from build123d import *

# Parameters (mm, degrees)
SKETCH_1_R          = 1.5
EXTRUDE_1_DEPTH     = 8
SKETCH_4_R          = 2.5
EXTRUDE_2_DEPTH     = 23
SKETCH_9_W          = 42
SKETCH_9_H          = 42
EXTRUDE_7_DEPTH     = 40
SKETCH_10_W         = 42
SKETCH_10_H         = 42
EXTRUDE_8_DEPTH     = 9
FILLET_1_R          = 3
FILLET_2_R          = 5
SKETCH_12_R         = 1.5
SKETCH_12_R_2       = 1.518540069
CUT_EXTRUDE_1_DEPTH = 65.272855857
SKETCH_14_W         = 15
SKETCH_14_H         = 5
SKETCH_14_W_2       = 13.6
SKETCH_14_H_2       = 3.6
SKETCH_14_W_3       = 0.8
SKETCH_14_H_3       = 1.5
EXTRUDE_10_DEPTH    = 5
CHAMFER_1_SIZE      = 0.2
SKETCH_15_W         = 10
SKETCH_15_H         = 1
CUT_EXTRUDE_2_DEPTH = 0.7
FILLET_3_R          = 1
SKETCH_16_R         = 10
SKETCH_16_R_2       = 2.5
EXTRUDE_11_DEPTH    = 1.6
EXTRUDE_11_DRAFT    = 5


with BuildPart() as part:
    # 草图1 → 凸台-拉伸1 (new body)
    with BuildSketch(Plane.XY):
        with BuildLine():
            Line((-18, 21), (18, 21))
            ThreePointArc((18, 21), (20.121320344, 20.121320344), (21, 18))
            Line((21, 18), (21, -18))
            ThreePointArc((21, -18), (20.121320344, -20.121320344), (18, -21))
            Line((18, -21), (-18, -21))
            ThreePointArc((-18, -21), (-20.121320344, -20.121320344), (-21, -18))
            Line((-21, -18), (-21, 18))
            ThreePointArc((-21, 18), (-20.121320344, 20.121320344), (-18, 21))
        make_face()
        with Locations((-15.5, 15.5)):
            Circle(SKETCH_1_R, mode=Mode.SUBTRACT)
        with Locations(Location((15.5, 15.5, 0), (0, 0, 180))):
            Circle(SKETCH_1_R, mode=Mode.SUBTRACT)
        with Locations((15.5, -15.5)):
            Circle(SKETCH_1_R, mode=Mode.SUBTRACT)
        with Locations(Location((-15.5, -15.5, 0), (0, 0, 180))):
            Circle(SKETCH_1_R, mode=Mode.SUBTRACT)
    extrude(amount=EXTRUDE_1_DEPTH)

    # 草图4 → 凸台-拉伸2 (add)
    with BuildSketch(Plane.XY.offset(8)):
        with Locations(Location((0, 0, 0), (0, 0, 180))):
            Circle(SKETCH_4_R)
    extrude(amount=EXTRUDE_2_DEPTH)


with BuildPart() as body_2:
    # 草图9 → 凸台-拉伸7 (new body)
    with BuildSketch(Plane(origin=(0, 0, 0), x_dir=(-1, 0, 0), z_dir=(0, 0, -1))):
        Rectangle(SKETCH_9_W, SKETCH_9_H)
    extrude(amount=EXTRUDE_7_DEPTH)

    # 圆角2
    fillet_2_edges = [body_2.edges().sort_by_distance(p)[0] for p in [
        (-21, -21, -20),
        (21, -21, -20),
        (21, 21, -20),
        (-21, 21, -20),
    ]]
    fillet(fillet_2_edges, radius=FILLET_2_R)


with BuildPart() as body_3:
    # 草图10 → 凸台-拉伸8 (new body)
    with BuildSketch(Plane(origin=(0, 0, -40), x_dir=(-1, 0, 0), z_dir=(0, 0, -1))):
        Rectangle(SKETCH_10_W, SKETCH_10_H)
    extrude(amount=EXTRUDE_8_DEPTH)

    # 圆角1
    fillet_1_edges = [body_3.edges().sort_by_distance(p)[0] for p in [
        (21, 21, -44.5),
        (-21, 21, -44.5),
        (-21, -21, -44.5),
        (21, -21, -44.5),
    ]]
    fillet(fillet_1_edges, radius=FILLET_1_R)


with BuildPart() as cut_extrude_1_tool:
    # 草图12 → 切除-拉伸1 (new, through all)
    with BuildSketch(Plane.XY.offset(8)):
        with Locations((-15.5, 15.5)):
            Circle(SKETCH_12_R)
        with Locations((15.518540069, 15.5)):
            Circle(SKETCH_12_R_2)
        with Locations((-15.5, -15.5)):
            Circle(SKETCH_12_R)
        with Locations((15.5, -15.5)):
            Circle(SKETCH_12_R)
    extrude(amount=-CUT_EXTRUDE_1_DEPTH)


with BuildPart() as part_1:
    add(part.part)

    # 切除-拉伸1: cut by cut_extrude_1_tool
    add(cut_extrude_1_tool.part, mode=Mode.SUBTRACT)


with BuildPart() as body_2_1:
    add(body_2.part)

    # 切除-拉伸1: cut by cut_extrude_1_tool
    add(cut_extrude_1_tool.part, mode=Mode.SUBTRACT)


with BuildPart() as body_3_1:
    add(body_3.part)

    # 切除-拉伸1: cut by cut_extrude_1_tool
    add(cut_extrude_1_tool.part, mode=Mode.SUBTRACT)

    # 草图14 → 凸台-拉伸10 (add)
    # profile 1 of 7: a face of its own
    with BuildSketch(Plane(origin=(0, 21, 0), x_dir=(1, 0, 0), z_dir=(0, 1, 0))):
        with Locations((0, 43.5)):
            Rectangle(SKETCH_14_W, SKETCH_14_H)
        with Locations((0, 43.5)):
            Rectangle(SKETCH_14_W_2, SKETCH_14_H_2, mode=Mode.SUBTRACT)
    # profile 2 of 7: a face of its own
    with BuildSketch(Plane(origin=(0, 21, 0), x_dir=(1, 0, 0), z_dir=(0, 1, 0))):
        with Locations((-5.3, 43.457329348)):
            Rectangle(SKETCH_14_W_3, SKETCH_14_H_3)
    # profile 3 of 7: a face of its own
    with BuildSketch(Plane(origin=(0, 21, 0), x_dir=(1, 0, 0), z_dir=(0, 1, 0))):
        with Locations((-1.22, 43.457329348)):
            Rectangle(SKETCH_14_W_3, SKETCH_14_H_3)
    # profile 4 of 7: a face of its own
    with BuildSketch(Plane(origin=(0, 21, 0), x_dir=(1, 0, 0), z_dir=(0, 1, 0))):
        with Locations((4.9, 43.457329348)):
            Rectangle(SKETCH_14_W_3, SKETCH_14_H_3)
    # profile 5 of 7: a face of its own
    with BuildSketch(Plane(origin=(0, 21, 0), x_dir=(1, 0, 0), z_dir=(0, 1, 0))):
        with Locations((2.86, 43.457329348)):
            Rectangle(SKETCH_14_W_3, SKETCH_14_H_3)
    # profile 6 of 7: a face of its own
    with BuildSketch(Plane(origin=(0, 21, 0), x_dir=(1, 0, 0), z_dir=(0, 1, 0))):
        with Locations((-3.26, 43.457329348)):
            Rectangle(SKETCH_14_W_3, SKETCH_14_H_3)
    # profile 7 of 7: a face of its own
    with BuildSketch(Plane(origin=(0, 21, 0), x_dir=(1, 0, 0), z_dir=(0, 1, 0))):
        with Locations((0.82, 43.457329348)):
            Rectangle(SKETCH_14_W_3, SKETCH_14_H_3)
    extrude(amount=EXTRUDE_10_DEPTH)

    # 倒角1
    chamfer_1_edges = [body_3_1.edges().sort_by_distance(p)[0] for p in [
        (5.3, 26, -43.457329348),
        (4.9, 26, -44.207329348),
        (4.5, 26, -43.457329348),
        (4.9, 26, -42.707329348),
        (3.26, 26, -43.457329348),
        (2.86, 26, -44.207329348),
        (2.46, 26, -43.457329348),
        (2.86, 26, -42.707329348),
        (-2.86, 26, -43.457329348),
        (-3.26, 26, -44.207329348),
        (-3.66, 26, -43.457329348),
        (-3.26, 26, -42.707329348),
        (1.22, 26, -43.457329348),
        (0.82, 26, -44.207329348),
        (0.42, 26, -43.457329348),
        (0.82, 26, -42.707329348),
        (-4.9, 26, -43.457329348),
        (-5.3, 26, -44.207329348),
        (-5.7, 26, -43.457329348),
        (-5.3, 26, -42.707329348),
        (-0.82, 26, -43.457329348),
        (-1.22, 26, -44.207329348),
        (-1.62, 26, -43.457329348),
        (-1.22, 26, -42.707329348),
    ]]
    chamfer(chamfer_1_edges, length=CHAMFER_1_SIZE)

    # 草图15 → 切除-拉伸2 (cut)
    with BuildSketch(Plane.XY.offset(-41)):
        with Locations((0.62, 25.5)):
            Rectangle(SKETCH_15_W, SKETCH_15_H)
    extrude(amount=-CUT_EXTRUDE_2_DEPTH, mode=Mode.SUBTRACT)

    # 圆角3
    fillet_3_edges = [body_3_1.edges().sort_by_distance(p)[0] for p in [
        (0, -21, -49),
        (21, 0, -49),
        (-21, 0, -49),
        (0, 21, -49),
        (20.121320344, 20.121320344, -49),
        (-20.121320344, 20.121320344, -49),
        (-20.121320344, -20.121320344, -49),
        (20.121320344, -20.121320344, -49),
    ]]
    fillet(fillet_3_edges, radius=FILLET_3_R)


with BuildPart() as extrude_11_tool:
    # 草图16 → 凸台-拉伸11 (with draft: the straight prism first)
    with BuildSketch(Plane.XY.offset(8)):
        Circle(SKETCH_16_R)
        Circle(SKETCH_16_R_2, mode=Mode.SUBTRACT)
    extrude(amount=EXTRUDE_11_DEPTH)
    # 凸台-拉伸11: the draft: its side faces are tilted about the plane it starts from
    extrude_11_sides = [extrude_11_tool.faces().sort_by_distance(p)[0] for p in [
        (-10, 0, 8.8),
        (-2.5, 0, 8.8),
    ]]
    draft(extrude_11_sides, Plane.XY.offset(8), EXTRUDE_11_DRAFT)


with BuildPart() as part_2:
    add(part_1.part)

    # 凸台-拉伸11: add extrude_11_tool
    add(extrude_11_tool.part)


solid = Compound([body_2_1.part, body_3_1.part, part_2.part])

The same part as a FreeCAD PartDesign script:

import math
import FreeCAD as App
import Part
import Sketcher

V = App.Vector
Q = App.Units.Quantity


def edges_at(feature, points):
    """Names of the edges that pass closest to the given points."""
    edges = feature.Shape.Edges
    near = lambda p: min(range(len(edges)), key=lambda i: edges[i].distToShape(Part.Vertex(*p))[0])
    return sorted({f"Edge{near(p) + 1}" for p in points})


def faces_at(feature, points):
    """Names of the faces that lie closest to the given points."""
    faces = feature.Shape.Faces
    near = lambda p: min(range(len(faces)), key=lambda i: faces[i].distToShape(Part.Vertex(*p))[0])
    return sorted({f"Face{near(p) + 1}" for p in points})


def add_polygon(sketch, points):
    """Adds a closed chain of lines whose ends are joined by coincident constraints."""
    first, n = sketch.GeometryCount, len(points)
    for a, b in zip(points, points[1:] + points[:1]):
        sketch.addGeometry(Part.LineSegment(App.Vector(*a, 0), App.Vector(*b, 0)), False)
    for i in range(n):
        sketch.addConstraint(Sketcher.Constraint("Coincident", first + i, 2, first + (i + 1) % n, 1))

doc = App.newDocument("Part")
body = doc.addObject("PartDesign::Body", "Body")

# Sketch on XY plane
sketch1 = body.newObject("Sketcher::SketchObject", "Sketch")
sketch1.AttachmentSupport = (doc.getObject("XY_Plane"), [""])
sketch1.MapMode = "FlatFace"
sketch1.addGeometry(Part.LineSegment(V(18, 21, 0), V(-18, 21, 0)), False)
sketch1.addGeometry(Part.ArcOfCircle(Part.Circle(V(-18, 18, 0), V(0, 0, 1), 3), math.radians(90), math.radians(180)), False)
sketch1.addGeometry(Part.LineSegment(V(-21, 18, 0), V(-21, -18, 0)), False)
sketch1.addGeometry(Part.ArcOfCircle(Part.Circle(V(-18, -18, 0), V(0, 0, 1), 3), math.radians(180), math.radians(270)), False)
sketch1.addGeometry(Part.LineSegment(V(-18, -21, 0), V(18, -21, 0)), False)
sketch1.addGeometry(Part.ArcOfCircle(Part.Circle(V(18, -18, 0), V(0, 0, 1), 3), math.radians(-90), math.radians(0)), False)
sketch1.addGeometry(Part.LineSegment(V(21, -18, 0), V(21, 18, 0)), False)
sketch1.addGeometry(Part.ArcOfCircle(Part.Circle(V(18, 18, 0), V(0, 0, 1), 3), math.radians(0), math.radians(90)), False)
sketch1.addGeometry(Part.Circle(V(15.5, -15.5, 0), V(0, 0, 1), 1.5), False)
sketch1.addGeometry(Part.Circle(V(-15.5, -15.5, 0), V(0, 0, 1), 1.5), False)
sketch1.addGeometry(Part.Circle(V(15.5, 15.5, 0), V(0, 0, 1), 1.5), False)
sketch1.addGeometry(Part.Circle(V(-15.5, 15.5, 0), V(0, 0, 1), 1.5), False)
sketch1.addConstraint(Sketcher.Constraint("Tangent", 0, 2, 1, 1))
sketch1.addConstraint(Sketcher.Constraint("Tangent", 1, 2, 2, 1))
sketch1.addConstraint(Sketcher.Constraint("Tangent", 2, 2, 3, 1))
sketch1.addConstraint(Sketcher.Constraint("Tangent", 3, 2, 4, 1))
sketch1.addConstraint(Sketcher.Constraint("Tangent", 4, 2, 5, 1))
sketch1.addConstraint(Sketcher.Constraint("Tangent", 5, 2, 6, 1))
sketch1.addConstraint(Sketcher.Constraint("Tangent", 6, 2, 7, 1))
sketch1.addConstraint(Sketcher.Constraint("Tangent", 7, 2, 0, 1))
sketch1.addConstraint(Sketcher.Constraint("Horizontal", 0))
sketch1.addConstraint(Sketcher.Constraint("Vertical", 2))
sketch1.addConstraint(Sketcher.Constraint("Horizontal", 4))
sketch1.addConstraint(Sketcher.Constraint("Vertical", 6))
sketch1.addConstraint(Sketcher.Constraint("Equal", 1, 3))
sketch1.addConstraint(Sketcher.Constraint("Equal", 3, 5))
sketch1.addConstraint(Sketcher.Constraint("Equal", 5, 7))
sketch1.addConstraint(Sketcher.Constraint("Equal", 8, 9))
sketch1.addConstraint(Sketcher.Constraint("Equal", 9, 10))
sketch1.addConstraint(Sketcher.Constraint("Equal", 10, 11))
sketch1.addConstraint(Sketcher.Constraint("Symmetric", 1, 3, 5, 3, -1, 1))
sketch1.addConstraint(Sketcher.Constraint("Symmetric", 9, 3, 10, 3, -1, 1))
sketch1.addConstraint(Sketcher.Constraint("Symmetric", 8, 3, 11, 3, -1, 1))
sketch1.addConstraint(Sketcher.Constraint("Symmetric", 8, 3, 9, 3, -2))
sketch1.addConstraint(Sketcher.Constraint("Equal", 4, 2))
sketch1.addConstraint(Sketcher.Constraint("Diameter", 8, Q("3 mm")))
sketch1.addConstraint(Sketcher.Constraint("Radius", 1, Q("3 mm")))
sketch1.addConstraint(Sketcher.Constraint("DistanceX", 0, 2, 0, 1, Q("36 mm")))
sketch1.addConstraint(Sketcher.Constraint("DistanceX", 9, 3, 8, 3, Q("31 mm")))
sketch1.addConstraint(Sketcher.Constraint("DistanceY", 8, 3, 10, 3, Q("31 mm")))
pad1 = body.newObject("PartDesign::Pad", "Pad")
pad1.Profile = sketch1
pad1.Length = 8

# Sketch on XY plane
sketch2 = body.newObject("Sketcher::SketchObject", "Sketch001")
sketch2.AttachmentSupport = (doc.getObject("XY_Plane"), [""])
sketch2.MapMode = "FlatFace"
sketch2.AttachmentOffset = App.Placement(V(0, 0, 8), App.Rotation())
sketch2.addGeometry(Part.Circle(V(0, 0, 0), V(0, 0, 1), 2.5), False)
sketch2.addConstraint(Sketcher.Constraint("Coincident", 0, 3, -1, 1))
sketch2.addConstraint(Sketcher.Constraint("Diameter", 0, Q("5 mm")))
pad2 = body.newObject("PartDesign::Pad", "Pad001")
pad2.Profile = sketch2
pad2.Length = 23
body2 = doc.addObject("PartDesign::Body", "Body001")

# Sketch on XY plane
sketch3 = body2.newObject("Sketcher::SketchObject", "Sketch002")
sketch3.AttachmentSupport = (doc.getObject("XY_Plane001"), [""])
sketch3.MapMode = "FlatFace"
add_polygon(sketch3, [(21, 21), (21, -21), (-21, -21), (-21, 21)])  # lines 0-3
sketch3.addConstraint(Sketcher.Constraint("Vertical", 0))
sketch3.addConstraint(Sketcher.Constraint("Horizontal", 1))
sketch3.addConstraint(Sketcher.Constraint("Vertical", 2))
sketch3.addConstraint(Sketcher.Constraint("Horizontal", 3))
sketch3.addConstraint(Sketcher.Constraint("Symmetric", 0, 2, 2, 2, -1, 1))
sketch3.addConstraint(Sketcher.Constraint("Equal", 3, 0))
sketch3.addConstraint(Sketcher.Constraint("DistanceX", 1, 2, 1, 1, Q("42 mm")))
pad3 = body2.newObject("PartDesign::Pad", "Pad002")
pad3.Profile = sketch3
pad3.Length = 40
pad3.Reversed = True
doc.recompute()

fillet = body2.newObject("PartDesign::Fillet", "Fillet")
fillet.Base = (pad3, edges_at(pad3, [
    (-21, -21, -20),
    (21, -21, -20),
    (21, 21, -20),
    (-21, 21, -20),
]))
fillet.Radius = 5
body3 = doc.addObject("PartDesign::Body", "Body002")

# Sketch on XY plane
sketch4 = body3.newObject("Sketcher::SketchObject", "Sketch003")
sketch4.AttachmentSupport = (doc.getObject("XY_Plane002"), [""])
sketch4.MapMode = "FlatFace"
sketch4.AttachmentOffset = App.Placement(V(0, 0, -40), App.Rotation())
add_polygon(sketch4, [(21, 21), (21, -21), (-21, -21), (-21, 21)])  # lines 0-3
sketch4.addConstraint(Sketcher.Constraint("Vertical", 0))
sketch4.addConstraint(Sketcher.Constraint("Horizontal", 1))
sketch4.addConstraint(Sketcher.Constraint("Vertical", 2))
sketch4.addConstraint(Sketcher.Constraint("Horizontal", 3))
sketch4.addConstraint(Sketcher.Constraint("Symmetric", 0, 2, 2, 2, -1, 1))
sketch4.addConstraint(Sketcher.Constraint("Equal", 3, 0))
sketch4.addConstraint(Sketcher.Constraint("DistanceX", 1, 2, 1, 1, Q("42 mm")))
pad4 = body3.newObject("PartDesign::Pad", "Pad003")
pad4.Profile = sketch4
pad4.Length = 9
pad4.Reversed = True
doc.recompute()

fillet2 = body3.newObject("PartDesign::Fillet", "Fillet001")
fillet2.Base = (pad4, edges_at(pad4, [
    (21, 21, -44.5),
    (-21, 21, -44.5),
    (-21, -21, -44.5),
    (21, -21, -44.5),
]))
fillet2.Radius = 3
body4 = doc.addObject("PartDesign::Body", "Body003")
body4.AllowCompound = True

# Sketch on XY plane
sketch5 = body4.newObject("Sketcher::SketchObject", "Sketch004")
sketch5.AttachmentSupport = (doc.getObject("XY_Plane003"), [""])
sketch5.MapMode = "FlatFace"
sketch5.AttachmentOffset = App.Placement(V(0, 0, 8), App.Rotation())
sketch5.addGeometry(Part.Circle(V(-15.5, 15.5, 0), V(0, 0, 1), 1.5), False)
sketch5.addGeometry(Part.Circle(V(15.5, 15.5, 0), V(0, 0, 1), 1.5), False)
sketch5.addGeometry(Part.Circle(V(-15.5, -15.5, 0), V(0, 0, 1), 1.5), False)
sketch5.addGeometry(Part.Circle(V(15.5, -15.5, 0), V(0, 0, 1), 1.5), False)
sketch5.addConstraint(Sketcher.Constraint("Equal", 0, 2))
sketch5.addConstraint(Sketcher.Constraint("Equal", 2, 3))
sketch5.addConstraint(Sketcher.Constraint("Symmetric", 0, 3, 3, 3, -1, 1))
sketch5.addConstraint(Sketcher.Constraint("Symmetric", 2, 3, 3, 3, -2))
sketch5.addConstraint(Sketcher.Constraint("Horizontal", 0, 3, 1, 3))
sketch5.addConstraint(Sketcher.Constraint("Diameter", 0, Q("3 mm")))
sketch5.addConstraint(Sketcher.Constraint("DistanceY", 2, 3, 0, 3, Q("31 mm")))
sketch5.addConstraint(Sketcher.Constraint("DistanceX", 2, 3, 3, 3, Q("31 mm")))
sketch5.addConstraint(Sketcher.Constraint("Diameter", 1, Q("3.03708 mm")))
sketch5.addConstraint(Sketcher.Constraint("DistanceX", -1, 1, 1, 3, Q("15.51854 mm")))
pad5 = body4.newObject("PartDesign::Pad", "Pad004")
pad5.Profile = sketch5
pad5.Length = 65.272856
pad5.Reversed = True
doc.recompute()

body5 = doc.addObject("PartDesign::Body", "Body004")
body5.BaseFeature = body4
boolean = body.newObject("PartDesign::Boolean", "Boolean")
boolean.Type = "Cut"
boolean.addObjects([body5])
doc.recompute()

body6 = doc.addObject("PartDesign::Body", "Body005")
body6.BaseFeature = body4
boolean2 = body2.newObject("PartDesign::Boolean", "Boolean001")
boolean2.Type = "Cut"
boolean2.addObjects([body6])
doc.recompute()

boolean3 = body3.newObject("PartDesign::Boolean", "Boolean002")
boolean3.Type = "Cut"
boolean3.addObjects([body4])

# Sketch on XZ plane
sketch6 = body3.newObject("Sketcher::SketchObject", "Sketch005")
sketch6.AttachmentSupport = (doc.getObject("XZ_Plane002"), [""])
sketch6.MapMode = "FlatFace"
sketch6.AttachmentOffset = App.Placement(V(0, 0, -21), App.Rotation())
add_polygon(sketch6, [(-7.5, -46), (-7.5, -41), (7.5, -41), (7.5, -46)])  # lines 0-3
add_polygon(sketch6, [(6.8, -41.7), (-6.8, -41.7), (-6.8, -45.3), (6.8, -45.3)])  # lines 4-7
add_polygon(sketch6, [(-5.7, -44.2), (-5.7, -42.7), (-4.9, -42.7), (-4.9, -44.2)])  # lines 8-11
add_polygon(sketch6, [(-1.6, -44.2), (-1.6, -42.7), (-0.8, -42.7), (-0.8, -44.2)])  # lines 12-15
add_polygon(sketch6, [(4.5, -44.2), (4.5, -42.7), (5.3, -42.7), (5.3, -44.2)])  # lines 16-19
add_polygon(sketch6, [(2.5, -44.2), (2.5, -42.7), (3.3, -42.7), (3.3, -44.2)])  # lines 20-23
add_polygon(sketch6, [(-3.7, -44.2), (-3.7, -42.7), (-2.9, -42.7), (-2.9, -44.2)])  # lines 24-27
add_polygon(sketch6, [(0.4, -44.2), (0.4, -42.7), (1.2, -42.7), (1.2, -44.2)])  # lines 28-31
sketch6.addConstraint(Sketcher.Constraint("Vertical", 0))
sketch6.addConstraint(Sketcher.Constraint("Horizontal", 1))
sketch6.addConstraint(Sketcher.Constraint("Vertical", 2))
sketch6.addConstraint(Sketcher.Constraint("Horizontal", 3))
sketch6.addConstraint(Sketcher.Constraint("Horizontal", 4))
sketch6.addConstraint(Sketcher.Constraint("Vertical", 5))
sketch6.addConstraint(Sketcher.Constraint("Horizontal", 6))
sketch6.addConstraint(Sketcher.Constraint("Vertical", 7))
sketch6.addConstraint(Sketcher.Constraint("Vertical", 8))
sketch6.addConstraint(Sketcher.Constraint("Horizontal", 9))
sketch6.addConstraint(Sketcher.Constraint("Vertical", 10))
sketch6.addConstraint(Sketcher.Constraint("Horizontal", 11))
sketch6.addConstraint(Sketcher.Constraint("Vertical", 12))
sketch6.addConstraint(Sketcher.Constraint("Horizontal", 13))
sketch6.addConstraint(Sketcher.Constraint("Vertical", 14))
sketch6.addConstraint(Sketcher.Constraint("Horizontal", 15))
sketch6.addConstraint(Sketcher.Constraint("Vertical", 16))
sketch6.addConstraint(Sketcher.Constraint("Horizontal", 17))
sketch6.addConstraint(Sketcher.Constraint("Vertical", 18))
sketch6.addConstraint(Sketcher.Constraint("Horizontal", 19))
sketch6.addConstraint(Sketcher.Constraint("Vertical", 20))
sketch6.addConstraint(Sketcher.Constraint("Horizontal", 21))
sketch6.addConstraint(Sketcher.Constraint("Vertical", 22))
sketch6.addConstraint(Sketcher.Constraint("Horizontal", 23))
sketch6.addConstraint(Sketcher.Constraint("Vertical", 24))
sketch6.addConstraint(Sketcher.Constraint("Horizontal", 25))
sketch6.addConstraint(Sketcher.Constraint("Vertical", 26))
sketch6.addConstraint(Sketcher.Constraint("Horizontal", 27))
sketch6.addConstraint(Sketcher.Constraint("Vertical", 28))
sketch6.addConstraint(Sketcher.Constraint("Horizontal", 29))
sketch6.addConstraint(Sketcher.Constraint("Vertical", 30))
sketch6.addConstraint(Sketcher.Constraint("Horizontal", 31))
sketch6.addConstraint(Sketcher.Constraint("Horizontal", 9, 2, 12, 2))
sketch6.addConstraint(Sketcher.Constraint("Horizontal", 11, 2, 14, 2))
sketch6.addConstraint(Sketcher.Constraint("Horizontal", 13, 2, 16, 2))
sketch6.addConstraint(Sketcher.Constraint("Horizontal", 15, 2, 18, 2))
sketch6.addConstraint(Sketcher.Constraint("Horizontal", 17, 2, 20, 2))
sketch6.addConstraint(Sketcher.Constraint("Horizontal", 19, 2, 22, 2))
sketch6.addConstraint(Sketcher.Constraint("Horizontal", 21, 2, 24, 2))
sketch6.addConstraint(Sketcher.Constraint("Horizontal", 23, 2, 26, 2))
sketch6.addConstraint(Sketcher.Constraint("Horizontal", 25, 2, 28, 2))
sketch6.addConstraint(Sketcher.Constraint("Horizontal", 27, 2, 30, 2))
sketch6.addConstraint(Sketcher.Constraint("Equal", 11, 13))
sketch6.addConstraint(Sketcher.Constraint("Equal", 15, 17))
sketch6.addConstraint(Sketcher.Constraint("Equal", 19, 21))
sketch6.addConstraint(Sketcher.Constraint("Equal", 23, 25))
sketch6.addConstraint(Sketcher.Constraint("Equal", 27, 29))
sketch6.addConstraint(Sketcher.Constraint("DistanceX", 1, 1, 1, 2, Q("15 mm")))
sketch6.addConstraint(Sketcher.Constraint("DistanceY", 0, 1, 0, 2, Q("5 mm")))
sketch6.addConstraint(Sketcher.Constraint("DistanceX", 4, 2, 4, 1, Q("13.6 mm")))
sketch6.addConstraint(Sketcher.Constraint("DistanceX", 9, 1, 9, 2, Q("0.8 mm")))
sketch6.addConstraint(Sketcher.Constraint("DistanceY", 5, 2, 5, 1, Q("3.6 mm")))
sketch6.addConstraint(Sketcher.Constraint("DistanceY", 8, 1, 8, 2, Q("1.5 mm")))
sketch6.addConstraint(Sketcher.Constraint("DistanceY", 0, 2, -1, 1, Q("41 mm")))
sketch6.addConstraint(Sketcher.Constraint("DistanceX", 16, 2, 1, 2, Q("3 mm")))
sketch6.addConstraint(Sketcher.Constraint("DistanceX", 0, 2, -1, 1, Q("7.5 mm")))
sketch6.addConstraint(Sketcher.Constraint("DistanceX", 4, 2, -1, 1, Q("6.8 mm")))
sketch6.addConstraint(Sketcher.Constraint("DistanceY", 4, 2, -1, 1, Q("41.7 mm")))
sketch6.addConstraint(Sketcher.Constraint("DistanceX", 8, 2, -1, 1, Q("5.7 mm")))
sketch6.addConstraint(Sketcher.Constraint("DistanceX", 12, 2, -1, 1, Q("1.62 mm")))
sketch6.addConstraint(Sketcher.Constraint("DistanceX", -1, 1, 20, 2, Q("2.46 mm")))
sketch6.addConstraint(Sketcher.Constraint("DistanceX", 24, 2, -1, 1, Q("3.66 mm")))
sketch6.addConstraint(Sketcher.Constraint("DistanceX", -1, 1, 28, 2, Q("0.42 mm")))
sketch6.addConstraint(Sketcher.Constraint("DistanceY", 8, 2, -1, 1, Q("42.707329 mm")))
pad6 = body3.newObject("PartDesign::Pad", "Pad005")
pad6.Profile = sketch6
pad6.Length = 5
pad6.Reversed = True
doc.recompute()

chamfer = body3.newObject("PartDesign::Chamfer", "Chamfer")
chamfer.Base = (pad6, edges_at(pad6, [
    (5.3, 26, -43.457),
    (4.9, 26, -44.207),
    (4.5, 26, -43.457),
    (4.9, 26, -42.707),
    (3.26, 26, -43.457),
    (2.86, 26, -44.207),
    (2.46, 26, -43.457),
    (2.86, 26, -42.707),
    (-2.86, 26, -43.457),
    (-3.26, 26, -44.207),
    (-3.66, 26, -43.457),
    (-3.26, 26, -42.707),
    (1.22, 26, -43.457),
    (0.82, 26, -44.207),
    (0.42, 26, -43.457),
    (0.82, 26, -42.707),
    (-4.9, 26, -43.457),
    (-5.3, 26, -44.207),
    (-5.7, 26, -43.457),
    (-5.3, 26, -42.707),
    (-0.82, 26, -43.457),
    (-1.22, 26, -44.207),
    (-1.62, 26, -43.457),
    (-1.22, 26, -42.707),
]))
chamfer.Size = 0.2

# Sketch on XY plane
sketch7 = body3.newObject("Sketcher::SketchObject", "Sketch006")
sketch7.AttachmentSupport = (doc.getObject("XY_Plane002"), [""])
sketch7.MapMode = "FlatFace"
sketch7.AttachmentOffset = App.Placement(V(0, 0, -41), App.Rotation())
add_polygon(sketch7, [(-4.4, 26), (-4.4, 25), (5.6, 25), (5.6, 26)])  # lines 0-3
sketch7.addConstraint(Sketcher.Constraint("Vertical", 0))
sketch7.addConstraint(Sketcher.Constraint("Horizontal", 1))
sketch7.addConstraint(Sketcher.Constraint("Vertical", 2))
sketch7.addConstraint(Sketcher.Constraint("Horizontal", 3))
sketch7.addConstraint(Sketcher.Constraint("DistanceX", 1, 1, 1, 2, Q("10 mm")))
sketch7.addConstraint(Sketcher.Constraint("DistanceY", 0, 2, 0, 1, Q("1 mm")))
sketch7.addConstraint(Sketcher.Constraint("DistanceY", -1, 1, 0, 2, Q("25 mm")))
sketch7.addConstraint(Sketcher.Constraint("DistanceX", 0, 2, -1, 1, Q("4.38 mm")))
pocket1 = body3.newObject("PartDesign::Pocket", "Pocket")
pocket1.Profile = sketch7
pocket1.Length = 0.7
doc.recompute()

fillet3 = body3.newObject("PartDesign::Fillet", "Fillet002")
fillet3.Base = (pocket1, edges_at(pocket1, [
    (0, -21, -49),
    (21, 0, -49),
    (-21, 0, -49),
    (0, 21, -49),
    (20.121, 20.121, -49),
    (-20.121, 20.121, -49),
    (-20.121, -20.121, -49),
    (20.121, -20.121, -49),
]))
fillet3.Radius = 1
body7 = doc.addObject("PartDesign::Body", "Body006")

# Sketch on XY plane
sketch8 = body7.newObject("Sketcher::SketchObject", "Sketch007")
sketch8.AttachmentSupport = (doc.getObject("XY_Plane006"), [""])
sketch8.MapMode = "FlatFace"
sketch8.AttachmentOffset = App.Placement(V(0, 0, 8), App.Rotation())
sketch8.addGeometry(Part.Circle(V(0, 0, 0), V(0, 0, 1), 10), False)
sketch8.addGeometry(Part.Circle(V(0, 0, 0), V(0, 0, 1), 2.5), False)
sketch8.addConstraint(Sketcher.Constraint("Coincident", 0, 3, -1, 1))
sketch8.addConstraint(Sketcher.Constraint("Coincident", 1, 3, -1, 1))
sketch8.addConstraint(Sketcher.Constraint("Diameter", 0, Q("20 mm")))
sketch8.addConstraint(Sketcher.Constraint("Diameter", 1, Q("5 mm")))
pad7 = body7.newObject("PartDesign::Pad", "Pad006")
pad7.Profile = sketch8
pad7.Length = 1.6
doc.recompute()

datumplane = body7.newObject("PartDesign::Plane", "DatumPlane")
datumplane.AttachmentSupport = (doc.getObject("XY_Plane006"), [""])
datumplane.MapMode = "FlatFace"
datumplane.AttachmentOffset = App.Placement(V(0, 0, 8), App.Rotation())
draft = body7.newObject("PartDesign::Draft", "Draft")
draft.Base = (pad7, faces_at(pad7, [(-10, 0, 8.8), (-2.5, 0, 8.8)]))
draft.NeutralPlane = (datumplane, [""])
draft.Angle = 5
draft.Reversed = False
doc.recompute()

boolean4 = body.newObject("PartDesign::Boolean", "Boolean003")
boolean4.Type = "Fuse"
boolean4.addObjects([body7])

doc.recompute()
